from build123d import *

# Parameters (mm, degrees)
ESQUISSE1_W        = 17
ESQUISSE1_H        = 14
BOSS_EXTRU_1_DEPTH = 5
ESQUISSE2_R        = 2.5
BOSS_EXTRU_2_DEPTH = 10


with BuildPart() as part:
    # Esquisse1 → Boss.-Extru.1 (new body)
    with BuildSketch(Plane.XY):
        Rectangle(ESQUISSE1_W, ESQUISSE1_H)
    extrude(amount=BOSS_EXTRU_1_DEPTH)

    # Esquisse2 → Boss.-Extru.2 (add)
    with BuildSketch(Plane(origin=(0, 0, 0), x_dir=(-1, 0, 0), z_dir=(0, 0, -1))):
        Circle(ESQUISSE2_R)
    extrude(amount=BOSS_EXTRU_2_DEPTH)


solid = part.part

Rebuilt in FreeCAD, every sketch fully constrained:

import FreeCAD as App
import Part
import Sketcher

V = App.Vector

doc = App.newDocument("Part")
params = doc.addObject("Spreadsheet::Sheet", "Params")
for row, (alias, value) in enumerate([
    ("sketch1_width", "17 mm"),
    ("sketch1_height", "14 mm"),
    ("pad1_length", "5 mm"),
    ("sketch2_diameter", "5 mm"),
    ("pad2_length", "10 mm"),
], start=1):
    params.set(f"A{row}", alias)
    params.set(f"B{row}", "=" + value)
    params.setAlias(f"B{row}", alias)

body = doc.addObject("PartDesign::Body", "Body")

# Sketch on XY plane
sketch1 = body.newObject("Sketcher::SketchObject", "Sketch")
sketch1.AttachmentSupport = (doc.getObject("XY_Plane"), [""])
sketch1.MapMode = "FlatFace"
sketch1.addGeometry(Part.LineSegment(V(-8, 7, 0), V(-8, -7, 0)), False)
sketch1.addGeometry(Part.LineSegment(V(-8, -7, 0), V(8, -7, 0)), False)
sketch1.addGeometry(Part.LineSegment(V(8, -7, 0), V(8, 7, 0)), False)
sketch1.addGeometry(Part.LineSegment(V(8, 7, 0), V(-8, 7, 0)), False)
sketch1.addConstraint(Sketcher.Constraint("Coincident", 0, 2, 1, 1))
sketch1.addConstraint(Sketcher.Constraint("Coincident", 1, 2, 2, 1))
sketch1.addConstraint(Sketcher.Constraint("Coincident", 2, 2, 3, 1))
sketch1.addConstraint(Sketcher.Constraint("Coincident", 3, 2, 0, 1))
sketch1.addConstraint(Sketcher.Constraint("Vertical", 0))
sketch1.addConstraint(Sketcher.Constraint("Horizontal", 1))
sketch1.addConstraint(Sketcher.Constraint("Vertical", 2))
sketch1.addConstraint(Sketcher.Constraint("Horizontal", 3))
sketch1.addConstraint(Sketcher.Constraint("Symmetric", 0, 2, 2, 2, -1, 1))
sketch1.addConstraint(Sketcher.Constraint("DistanceX", 1, 1, 1, 2, 17.0))
sketch1.addConstraint(Sketcher.Constraint("DistanceY", 0, 2, 0, 1, 14.0))
sketch1.setExpression("Constraints[9]", "Params.sketch1_width")
sketch1.setExpression("Constraints[10]", "Params.sketch1_height")
pad1 = body.newObject("PartDesign::Pad", "Pad")
pad1.Profile = sketch1
pad1.setExpression("Length", "Params.pad1_length")

# Sketch on XY plane
sketch2 = body.newObject("Sketcher::SketchObject", "Sketch001")
sketch2.AttachmentSupport = (doc.getObject("XY_Plane"), [""])
sketch2.MapMode = "FlatFace"
sketch2.addGeometry(Part.Circle(V(0, 0, 0), V(0, 0, 1), 2.5), False)
sketch2.addConstraint(Sketcher.Constraint("Coincident", 0, 3, -1, 1))
sketch2.addConstraint(Sketcher.Constraint("Diameter", 0, 5.0))
sketch2.setExpression("Constraints[1]", "Params.sketch2_diameter")
pad2 = body.newObject("PartDesign::Pad", "Pad001")
pad2.Profile = sketch2
pad2.setExpression("Length", "Params.pad2_length")
pad2.Reversed = True

doc.recompute()
